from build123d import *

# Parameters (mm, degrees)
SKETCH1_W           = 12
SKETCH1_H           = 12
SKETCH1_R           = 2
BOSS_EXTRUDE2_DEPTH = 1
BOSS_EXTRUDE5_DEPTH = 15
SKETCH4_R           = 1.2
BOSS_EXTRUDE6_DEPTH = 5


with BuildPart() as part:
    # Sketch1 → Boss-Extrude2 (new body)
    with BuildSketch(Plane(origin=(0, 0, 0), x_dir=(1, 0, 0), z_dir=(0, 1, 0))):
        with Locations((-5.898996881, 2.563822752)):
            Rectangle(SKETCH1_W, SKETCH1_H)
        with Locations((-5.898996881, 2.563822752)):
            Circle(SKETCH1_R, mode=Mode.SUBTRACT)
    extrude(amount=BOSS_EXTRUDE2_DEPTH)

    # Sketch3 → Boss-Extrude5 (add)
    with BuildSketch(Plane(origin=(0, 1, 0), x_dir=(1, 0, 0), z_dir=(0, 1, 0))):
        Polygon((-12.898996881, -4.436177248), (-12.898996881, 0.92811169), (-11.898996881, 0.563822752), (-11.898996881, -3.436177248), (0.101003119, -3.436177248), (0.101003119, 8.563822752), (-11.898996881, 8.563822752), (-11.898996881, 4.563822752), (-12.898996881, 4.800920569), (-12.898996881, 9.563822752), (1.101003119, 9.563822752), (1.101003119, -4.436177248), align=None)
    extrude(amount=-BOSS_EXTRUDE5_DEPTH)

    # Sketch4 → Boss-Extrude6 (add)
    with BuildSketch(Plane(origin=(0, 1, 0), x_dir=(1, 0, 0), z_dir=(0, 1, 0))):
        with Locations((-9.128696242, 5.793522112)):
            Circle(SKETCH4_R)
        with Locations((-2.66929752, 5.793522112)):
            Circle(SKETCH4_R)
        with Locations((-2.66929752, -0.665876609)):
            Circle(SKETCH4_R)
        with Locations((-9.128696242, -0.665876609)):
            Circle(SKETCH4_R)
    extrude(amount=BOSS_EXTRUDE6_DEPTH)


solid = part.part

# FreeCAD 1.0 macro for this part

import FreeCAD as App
import Part
import Sketcher
from FreeCAD import Vector
Q = App.Units.Quantity


def add_polygon(sketch, points):
    """Adds a closed chain of lines whose ends are joined by coincident constraints."""
    first, n = sketch.GeometryCount, len(points)
    for a, b in zip(points, points[1:] + points[:1]):
        sketch.addGeometry(Part.LineSegment(App.Vector(*a, 0), App.Vector(*b, 0)), False)
    for i in range(n):
        sketch.addConstraint(Sketcher.Constraint("Coincident", first + i, 2, first + (i + 1) % n, 1))

doc = App.newDocument("Part")
body = doc.addObject("PartDesign::Body", "Body")

sketch1 = doc.addObject("Sketcher::SketchObject", "Sketch")
body.addObject(sketch1)
sketch1.AttachmentSupport = (doc.XZ_Plane, [""])
sketch1.MapMode = "FlatFace"
add_polygon(sketch1, [(-11.9, -8.6), (-11.9, 3.4), (0.1, 3.4), (0.1, -8.6)])
sketch1.addGeometry(Part.Circle(Vector(-5.9, -2.6, 0), Vector(0, 0, 1), 2), False)
sketch1.addConstraint(Sketcher.Constraint("Vertical", 0))
sketch1.addConstraint(Sketcher.Constraint("Horizontal", 1))
sketch1.addConstraint(Sketcher.Constraint("Vertical", 2))
sketch1.addConstraint(Sketcher.Constraint("Horizontal", 3))
sketch1.addConstraint(Sketcher.Constraint("Equal", 3, 0))
sketch1.addConstraint(Sketcher.Constraint("Diameter", 4, Q("4 mm")))
sketch1.addConstraint(Sketcher.Constraint("DistanceX", 1, 1, 1, 2, Q("12 mm")))
sketch1.addConstraint(Sketcher.Constraint("DistanceX", 0, 2, 4, 3, Q("6 mm")))
sketch1.addConstraint(Sketcher.Constraint("DistanceY", 4, 3, 0, 2, Q("6 mm")))
sketch1.addConstraint(Sketcher.Constraint("DistanceX", 4, 3, -1, 1, Q("5.898997 mm")))
sketch1.addConstraint(Sketcher.Constraint("DistanceY", 4, 3, -1, 1, Q("2.563823 mm")))
pad1 = doc.addObject("PartDesign::Pad", "Pad")
body.addObject(pad1)
pad1.Profile = sketch1
pad1.Length = 1
pad1.Reversed = True

sketch2 = doc.addObject("Sketcher::SketchObject", "Sketch001")
body.addObject(sketch2)
sketch2.AttachmentSupport = (doc.XZ_Plane, [""])
sketch2.MapMode = "FlatFace"
sketch2.AttachmentOffset = App.Placement(Vector(0, 0, -1), App.Rotation())
add_polygon(sketch2, [(-12.9, -0.9), (-12.9, 4.4), (1.1, 4.4), (1.1, -9.6), (-12.9, -9.6), (-12.9, -4.8), (-11.9, -4.6), (-11.9, -8.6), (0.1, -8.6), (0.1, 3.4), (-11.9, 3.4), (-11.9, -0.6)])
sketch2.addConstraint(Sketcher.Constraint("Vertical", 0))
sketch2.addConstraint(Sketcher.Constraint("Horizontal", 1))
sketch2.addConstraint(Sketcher.Constraint("Vertical", 2))
sketch2.addConstraint(Sketcher.Constraint("Horizontal", 3))
sketch2.addConstraint(Sketcher.Constraint("Vertical", 4))
sketch2.addConstraint(Sketcher.Constraint("Vertical", 6))
sketch2.addConstraint(Sketcher.Constraint("Horizontal", 7))
sketch2.addConstraint(Sketcher.Constraint("Vertical", 8))
sketch2.addConstraint(Sketcher.Constraint("Horizontal", 9))
sketch2.addConstraint(Sketcher.Constraint("Vertical", 10))
sketch2.addConstraint(Sketcher.Constraint("Vertical", 0, 2, 3, 2))
sketch2.addConstraint(Sketcher.Constraint("Vertical", 6, 2, 9, 2))
sketch2.addConstraint(Sketcher.Constraint("Equal", 3, 2))
sketch2.addConstraint(Sketcher.Constraint("Equal", 9, 8))
sketch2.addConstraint(Sketcher.Constraint("Equal", 6, 10))
sketch2.addConstraint(Sketcher.Constraint("DistanceX", 1, 1, 1, 2, Q("14 mm")))
sketch2.addConstraint(Sketcher.Constraint("DistanceX", 7, 1, 7, 2, Q("12 mm")))
sketch2.addConstraint(Sketcher.Constraint("DistanceY", 6, 2, 6, 1, Q("4 mm")))
sketch2.addConstraint(Sketcher.Constraint("DistanceX", 4, 2, 5, 2, Q("1 mm")))
sketch2.addConstraint(Sketcher.Constraint("DistanceY", 3, 2, 5, 2, Q("5 mm")))
sketch2.addConstraint(Sketcher.Constraint("DistanceY", 0, 1, 0, 2, Q("5.364289 mm")))
sketch2.addConstraint(Sketcher.Constraint("DistanceY", 4, 1, 4, 2, Q("4.762902 mm")))
sketch2.addConstraint(Sketcher.Constraint("DistanceY", 4, 2, -1, 1, Q("4.800921 mm")))
sketch2.addConstraint(Sketcher.Constraint("DistanceX", 0, 2, -1, 1, Q("12.898997 mm")))
pad2 = doc.addObject("PartDesign::Pad", "Pad001")
body.addObject(pad2)
pad2.Profile = sketch2
pad2.Length = 15

sketch3 = doc.addObject("Sketcher::SketchObject", "Sketch002")
body.addObject(sketch3)
sketch3.AttachmentSupport = (doc.XZ_Plane, [""])
sketch3.MapMode = "FlatFace"
sketch3.AttachmentOffset = App.Placement(Vector(0, 0, -1), App.Rotation())
sketch3.addGeometry(Part.Circle(Vector(-9.1, -5.8, 0), Vector(0, 0, 1), 1.2), False)
sketch3.addGeometry(Part.Circle(Vector(-2.7, -5.8, 0), Vector(0, 0, 1), 1.2), False)
sketch3.addGeometry(Part.Circle(Vector(-2.7, 0.7, 0), Vector(0, 0, 1), 1.2), False)
sketch3.addGeometry(Part.Circle(Vector(-9.1, 0.7, 0), Vector(0, 0, 1), 1.2), False)
sketch3.addConstraint(Sketcher.Constraint("Equal", 0, 1))
sketch3.addConstraint(Sketcher.Constraint("Equal", 1, 2))
sketch3.addConstraint(Sketcher.Constraint("Equal", 2, 3))
sketch3.addConstraint(Sketcher.Constraint("Horizontal", 0, 3, 1, 3))
sketch3.addConstraint(Sketcher.Constraint("Horizontal", 2, 3, 3, 3))
sketch3.addConstraint(Sketcher.Constraint("Vertical", 1, 3, 2, 3))
sketch3.addConstraint(Sketcher.Constraint("Vertical", 0, 3, 3, 3))
sketch3.addConstraint(Sketcher.Constraint("Diameter", 0, Q("2.4 mm")))
sketch3.addConstraint(Sketcher.Constraint("DistanceX", 0, 3, 1, 3, Q("6.459399 mm")))
sketch3.addConstraint(Sketcher.Constraint("DistanceY", 1, 3, 2, 3, Q("6.459399 mm")))
sketch3.addConstraint(Sketcher.Constraint("DistanceX", 0, 3, -1, 1, Q("9.128696 mm")))
sketch3.addConstraint(Sketcher.Constraint("DistanceY", 0, 3, -1, 1, Q("5.793522 mm")))
pad3 = doc.addObject("PartDesign::Pad", "Pad002")
body.addObject(pad3)
pad3.Profile = sketch3
pad3.Length = 5
pad3.Reversed = True

doc.recompute()
